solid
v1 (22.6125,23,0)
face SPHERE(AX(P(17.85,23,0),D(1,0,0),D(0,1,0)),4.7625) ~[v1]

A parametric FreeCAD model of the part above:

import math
import FreeCAD as App
import Part
import Sketcher
from FreeCAD import Vector
Q = App.Units.Quantity

doc = App.newDocument("Part")
body = doc.addObject("PartDesign::Body", "Body")

# Sketch on XY plane
sketch1 = body.newObject("Sketcher::SketchObject", "Sketch")
sketch1.AttachmentSupport = (doc.getObject("XY_Plane"), [""])
sketch1.MapMode = "FlatFace"
sketch1.addGeometry([
    Part.ArcOfCircle(Part.Circle(Vector(17.9, 23, 0), Vector(0, 0, 1), 4.8), math.radians(0), math.radians(180)),
    Part.LineSegment(Vector(13.1, 23, 0), Vector(22.6, 23, 0)),
], False)
sketch1.addGeometry(Part.LineSegment(Vector(22.6, 23, 0), Vector(13.1, 23, 0)), True)  # axis
sketch1.addConstraint([
    Sketcher.Constraint("Coincident", 0, 1, 1, 2),
    Sketcher.Constraint("Coincident", 1, 1, 0, 2),
    Sketcher.Constraint("Horizontal", 1),
    Sketcher.Constraint("Horizontal", 2),
    Sketcher.Constraint("Coincident", 2, 1, 0, 1),
    Sketcher.Constraint("Equal", 1, 2),
    Sketcher.Constraint("Radius", 0, Q("0.1875 in")),
    Sketcher.Constraint("DistanceY", -1, 1, 0, 3, Q("0.9055 in")),
    Sketcher.Constraint("DistanceY", -1, 1, 0, 1, Q("0.9055 in")),
    Sketcher.Constraint("DistanceX", -1, 1, 0, 3, 17.85),
])
revolution = body.newObject("PartDesign::Revolution", "Revolution")
revolution.Profile = sketch1
revolution.ReferenceAxis = (sketch1, ["Axis0"])
revolution.Angle = 360

doc.recompute()
